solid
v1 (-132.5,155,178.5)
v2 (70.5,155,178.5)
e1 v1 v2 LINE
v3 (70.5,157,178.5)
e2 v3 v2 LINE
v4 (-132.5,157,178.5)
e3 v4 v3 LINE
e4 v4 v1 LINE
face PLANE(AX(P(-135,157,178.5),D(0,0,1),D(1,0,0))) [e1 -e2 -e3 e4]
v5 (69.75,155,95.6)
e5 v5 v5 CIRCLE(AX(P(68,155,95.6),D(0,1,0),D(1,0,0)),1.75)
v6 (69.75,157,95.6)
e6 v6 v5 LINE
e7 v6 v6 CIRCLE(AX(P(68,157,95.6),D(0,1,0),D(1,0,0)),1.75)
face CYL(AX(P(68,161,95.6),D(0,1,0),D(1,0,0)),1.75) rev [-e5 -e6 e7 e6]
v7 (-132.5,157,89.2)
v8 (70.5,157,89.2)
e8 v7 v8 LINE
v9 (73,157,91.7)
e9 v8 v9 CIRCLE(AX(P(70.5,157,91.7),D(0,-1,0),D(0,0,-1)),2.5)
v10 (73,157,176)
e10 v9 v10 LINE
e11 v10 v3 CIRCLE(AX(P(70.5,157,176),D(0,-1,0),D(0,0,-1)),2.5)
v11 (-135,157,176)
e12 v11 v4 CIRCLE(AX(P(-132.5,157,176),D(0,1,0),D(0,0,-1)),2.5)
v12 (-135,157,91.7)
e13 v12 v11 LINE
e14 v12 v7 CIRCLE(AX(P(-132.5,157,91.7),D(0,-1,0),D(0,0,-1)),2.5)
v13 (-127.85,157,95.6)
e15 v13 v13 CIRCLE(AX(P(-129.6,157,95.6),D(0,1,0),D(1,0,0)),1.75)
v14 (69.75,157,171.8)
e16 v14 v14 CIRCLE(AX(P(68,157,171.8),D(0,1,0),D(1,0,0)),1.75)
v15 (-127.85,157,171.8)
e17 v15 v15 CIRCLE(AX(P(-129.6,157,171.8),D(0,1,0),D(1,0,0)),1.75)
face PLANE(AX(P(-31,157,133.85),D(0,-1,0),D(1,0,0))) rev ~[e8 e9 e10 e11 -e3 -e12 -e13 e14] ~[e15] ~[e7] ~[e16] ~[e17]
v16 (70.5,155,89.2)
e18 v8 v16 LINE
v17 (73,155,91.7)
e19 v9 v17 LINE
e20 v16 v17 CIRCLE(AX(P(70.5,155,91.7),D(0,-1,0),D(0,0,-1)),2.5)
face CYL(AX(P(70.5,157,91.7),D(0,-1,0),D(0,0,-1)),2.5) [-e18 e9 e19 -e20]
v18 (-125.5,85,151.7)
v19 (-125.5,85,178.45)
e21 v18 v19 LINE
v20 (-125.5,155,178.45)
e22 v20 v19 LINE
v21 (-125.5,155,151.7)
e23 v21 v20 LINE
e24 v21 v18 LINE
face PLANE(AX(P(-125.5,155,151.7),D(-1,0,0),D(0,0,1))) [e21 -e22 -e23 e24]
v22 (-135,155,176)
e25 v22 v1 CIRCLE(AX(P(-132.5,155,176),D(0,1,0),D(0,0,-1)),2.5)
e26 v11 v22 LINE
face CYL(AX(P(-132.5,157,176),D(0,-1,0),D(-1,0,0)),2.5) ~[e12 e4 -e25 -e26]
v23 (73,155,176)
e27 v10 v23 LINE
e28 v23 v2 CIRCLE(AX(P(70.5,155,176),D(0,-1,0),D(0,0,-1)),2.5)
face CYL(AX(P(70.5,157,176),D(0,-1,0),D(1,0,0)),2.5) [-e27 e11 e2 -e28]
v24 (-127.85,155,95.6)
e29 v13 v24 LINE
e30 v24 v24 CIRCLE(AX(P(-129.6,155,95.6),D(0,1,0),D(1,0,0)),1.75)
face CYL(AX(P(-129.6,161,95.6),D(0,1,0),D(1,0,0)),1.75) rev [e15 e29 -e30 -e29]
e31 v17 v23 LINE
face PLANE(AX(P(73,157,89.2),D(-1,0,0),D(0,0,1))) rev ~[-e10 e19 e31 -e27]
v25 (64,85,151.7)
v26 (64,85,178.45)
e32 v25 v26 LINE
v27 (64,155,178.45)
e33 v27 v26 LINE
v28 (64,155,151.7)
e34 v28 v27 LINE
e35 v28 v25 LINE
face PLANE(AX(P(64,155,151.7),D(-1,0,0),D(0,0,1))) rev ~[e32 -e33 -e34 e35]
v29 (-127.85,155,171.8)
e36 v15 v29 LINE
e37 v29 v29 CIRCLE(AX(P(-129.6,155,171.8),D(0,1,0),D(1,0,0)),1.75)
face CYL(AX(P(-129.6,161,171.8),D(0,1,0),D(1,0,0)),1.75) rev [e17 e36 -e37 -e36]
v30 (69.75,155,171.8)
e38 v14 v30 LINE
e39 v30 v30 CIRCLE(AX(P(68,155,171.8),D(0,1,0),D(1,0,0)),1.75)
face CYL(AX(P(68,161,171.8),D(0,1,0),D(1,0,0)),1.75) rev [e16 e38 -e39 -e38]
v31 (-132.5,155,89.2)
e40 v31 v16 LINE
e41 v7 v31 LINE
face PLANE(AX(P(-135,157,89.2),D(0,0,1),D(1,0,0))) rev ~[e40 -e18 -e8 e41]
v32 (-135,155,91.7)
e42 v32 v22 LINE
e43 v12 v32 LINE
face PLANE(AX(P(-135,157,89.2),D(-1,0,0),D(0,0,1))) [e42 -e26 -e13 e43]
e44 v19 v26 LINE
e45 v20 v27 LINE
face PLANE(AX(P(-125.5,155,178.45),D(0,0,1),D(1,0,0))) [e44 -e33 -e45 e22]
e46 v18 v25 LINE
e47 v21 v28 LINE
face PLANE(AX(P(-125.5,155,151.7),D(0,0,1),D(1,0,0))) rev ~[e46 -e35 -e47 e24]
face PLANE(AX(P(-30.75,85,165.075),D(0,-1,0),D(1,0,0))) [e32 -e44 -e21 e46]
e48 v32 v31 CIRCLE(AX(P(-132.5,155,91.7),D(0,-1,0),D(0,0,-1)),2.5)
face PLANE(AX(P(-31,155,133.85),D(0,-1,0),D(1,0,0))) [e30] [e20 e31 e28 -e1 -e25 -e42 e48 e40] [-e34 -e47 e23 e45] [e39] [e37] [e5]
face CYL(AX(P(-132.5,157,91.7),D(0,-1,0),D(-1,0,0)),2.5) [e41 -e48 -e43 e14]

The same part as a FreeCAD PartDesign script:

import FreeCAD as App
import Part
import Sketcher

V = App.Vector


def edges_at(feature, points):
    """Names of the edges that pass closest to the given points."""
    edges = feature.Shape.Edges
    near = lambda p: min(range(len(edges)), key=lambda i: edges[i].distToShape(Part.Vertex(*p))[0])
    return sorted({f"Edge{near(p) + 1}" for p in points})

doc = App.newDocument("Part")
body = doc.addObject("PartDesign::Body", "Body")

sketch1 = doc.addObject("Sketcher::SketchObject", "Sketch")
body.addObject(sketch1)
sketch1.AttachmentSupport = (doc.XY_Plane, [""])
sketch1.MapMode = "FlatFace"
sketch1.addGeometry(Part.Circle(V(5.4, 82.6, 0), V(0, 0, 1), 1.75), False)
sketch1.addConstraint([
    Sketcher.Constraint("Diameter", 0, 3.5),
    Sketcher.Constraint("DistanceX", -1, 1, 0, 3, 5.4),
    Sketcher.Constraint("DistanceY", -1, 1, 0, 3, 82.6),
])
pad1 = doc.addObject("PartDesign::Pad", "Pad")
body.addObject(pad1)
pad1.Profile = sketch1
pad1.Length = 10
body2 = doc.addObject("PartDesign::Body", "Body001")

sketch2 = doc.addObject("Sketcher::SketchObject", "Sketch001")
body2.addObject(sketch2)
sketch2.AttachmentSupport = (doc.getObject("XY_Plane001"), [""])
sketch2.MapMode = "FlatFace"
sketch2.addGeometry(Part.Circle(V(203, 82.6, 0), V(0, 0, 1), 1.75), False)
sketch2.addConstraint([
    Sketcher.Constraint("Diameter", 0, 3.5),
    Sketcher.Constraint("DistanceX", -1, 1, 0, 3, 203.0),
    Sketcher.Constraint("DistanceY", -1, 1, 0, 3, 82.6),
])
pad2 = doc.addObject("PartDesign::Pad", "Pad001")
body2.addObject(pad2)
pad2.Profile = sketch2
pad2.Length = 10
body3 = doc.addObject("PartDesign::Body", "Body002")

sketch3 = doc.addObject("Sketcher::SketchObject", "Sketch002")
body3.addObject(sketch3)
sketch3.AttachmentSupport = (doc.getObject("XY_Plane002"), [""])
sketch3.MapMode = "FlatFace"
sketch3.addGeometry(Part.Circle(V(203, 6.4, 0), V(0, 0, 1), 1.75), False)
sketch3.addConstraint([
    Sketcher.Constraint("Diameter", 0, 3.5),
    Sketcher.Constraint("DistanceX", -1, 1, 0, 3, 203.0),
    Sketcher.Constraint("DistanceY", -1, 1, 0, 3, 6.4),
])
pad3 = doc.addObject("PartDesign::Pad", "Pad002")
body3.addObject(pad3)
pad3.Profile = sketch3
pad3.Length = 10
body4 = doc.addObject("PartDesign::Body", "Body003")
body4.AllowCompound = True

sketch4 = doc.addObject("Sketcher::SketchObject", "Sketch003")
body4.addObject(sketch4)
sketch4.AttachmentSupport = (doc.getObject("XY_Plane003"), [""])
sketch4.MapMode = "FlatFace"
sketch4.addGeometry(Part.Circle(V(5.4, 6.4, 0), V(0, 0, 1), 1.75), False)
sketch4.addConstraint([
    Sketcher.Constraint("Diameter", 0, 3.5),
    Sketcher.Constraint("DistanceX", -1, 1, 0, 3, 5.4),
    Sketcher.Constraint("DistanceY", -1, 1, 0, 3, 6.4),
])
pad4 = doc.addObject("PartDesign::Pad", "Pad003")
body4.addObject(pad4)
pad4.Profile = sketch4
pad4.Length = 10
doc.recompute()

boolean = doc.addObject("PartDesign::Boolean", "Boolean")
body4.addObject(boolean)
boolean.Type = "Fuse"
boolean.addObjects([body])
doc.recompute()

boolean2 = doc.addObject("PartDesign::Boolean", "Boolean001")
body4.addObject(boolean2)
boolean2.Type = "Fuse"
boolean2.addObjects([body2])
doc.recompute()

boolean3 = doc.addObject("PartDesign::Boolean", "Boolean002")
body4.addObject(boolean3)
boolean3.Type = "Fuse"
boolean3.addObjects([body3])
body5 = doc.addObject("PartDesign::Body", "Body004")
body5.AllowCompound = True
doc.recompute()

body4.Placement = App.Placement(V(0, 0, -4), App.Rotation(V(0, 0, 1), 0))
boolean4 = doc.addObject("PartDesign::Boolean", "Boolean003")
body5.addObject(boolean4)
boolean4.Type = "Fuse"
boolean4.addObjects([body4])
body6 = doc.addObject("PartDesign::Body", "Body005")

sketch5 = doc.addObject("Sketcher::SketchObject", "Sketch004")
body6.addObject(sketch5)
sketch5.AttachmentSupport = (doc.getObject("XY_Plane005"), [""])
sketch5.MapMode = "FlatFace"
sketch5.AttachmentOffset = App.Placement(V(0, 0, 2), App.Rotation())
sketch5.addGeometry([
    Part.LineSegment(V(9.5, 89.25, 0), V(9.5, 62.5, 0)),
    Part.LineSegment(V(9.5, 62.5, 0), V(199, 62.5, 0)),
    Part.LineSegment(V(199, 62.5, 0), V(199, 89.25, 0)),
    Part.LineSegment(V(199, 89.25, 0), V(9.5, 89.25, 0)),
], False)
sketch5.addConstraint([
    Sketcher.Constraint("Coincident", 0, 2, 1, 1),
    Sketcher.Constraint("Coincident", 1, 2, 2, 1),
    Sketcher.Constraint("Coincident", 2, 2, 3, 1),
    Sketcher.Constraint("Coincident", 3, 2, 0, 1),
    Sketcher.Constraint("Vertical", 0),
    Sketcher.Constraint("Horizontal", 1),
    Sketcher.Constraint("Vertical", 2),
    Sketcher.Constraint("Horizontal", 3),
    Sketcher.Constraint("DistanceX", 1, 1, 1, 2, 189.5),
    Sketcher.Constraint("DistanceX", -1, 1, 1, 2, 199.0),
    Sketcher.Constraint("DistanceY", 0, 2, 0, 1, 26.75),
    Sketcher.Constraint("DistanceY", -1, 1, 0, 2, 62.5),
])
pad5 = doc.addObject("PartDesign::Pad", "Pad004")
body6.addObject(pad5)
pad5.Profile = sketch5
pad5.Length = 70
body7 = doc.addObject("PartDesign::Body", "Body006")

sketch6 = doc.addObject("Sketcher::SketchObject", "Sketch005")
body7.addObject(sketch6)
sketch6.AttachmentSupport = (doc.getObject("XY_Plane006"), [""])
sketch6.MapMode = "FlatFace"
sketch6.addGeometry([
    Part.LineSegment(V(0, 89.3, 0), V(0, 0, 0)),
    Part.LineSegment(V(0, 0, 0), V(208, 0, 0)),
    Part.LineSegment(V(208, 0, 0), V(208, 89.3, 0)),
    Part.LineSegment(V(208, 89.3, 0), V(0, 89.3, 0)),
], False)
sketch6.addConstraint([
    Sketcher.Constraint("Coincident", 0, 2, 1, 1),
    Sketcher.Constraint("Coincident", 1, 2, 2, 1),
    Sketcher.Constraint("Coincident", 2, 2, 3, 1),
    Sketcher.Constraint("Coincident", 3, 2, 0, 1),
    Sketcher.Constraint("Vertical", 0),
    Sketcher.Constraint("Horizontal", 1),
    Sketcher.Constraint("Vertical", 2),
    Sketcher.Constraint("Horizontal", 3),
    Sketcher.Constraint("Coincident", 0, 2, -1, 1),
    Sketcher.Constraint("DistanceX", 1, 1, 1, 2, 208.0),
    Sketcher.Constraint("DistanceY", 0, 2, 0, 1, 89.3),
])
pad6 = doc.addObject("PartDesign::Pad", "Pad005")
body7.addObject(pad6)
pad6.Profile = sketch6
pad6.Length = 2
doc.recompute()

fillet = doc.addObject("PartDesign::Fillet", "Fillet")
body7.addObject(fillet)
fillet.Base = (pad6, edges_at(pad6, [
    (0, 0, 1),
    (0, 89.3, 1),
    (208, 0, 1),
    (208, 89.3, 1),
]))
fillet.Radius = 2.5
doc.recompute()

boolean5 = doc.addObject("PartDesign::Boolean", "Boolean004")
body7.addObject(boolean5)
boolean5.Type = "Fuse"
boolean5.addObjects([body6])
doc.recompute()

boolean6 = doc.addObject("PartDesign::Boolean", "Boolean005")
body7.addObject(boolean6)
boolean6.Type = "Cut"
boolean6.addObjects([body5])
body8 = doc.addObject("PartDesign::Body", "Body007")
doc.recompute()

body7.Placement = App.Placement(V(-135, 157, 89.2), App.Rotation(V(1, 0, 0), 90))
boolean7 = doc.addObject("PartDesign::Boolean", "Boolean006")
body8.addObject(boolean7)
boolean7.Type = "Fuse"
boolean7.addObjects([body7])

doc.recompute()
